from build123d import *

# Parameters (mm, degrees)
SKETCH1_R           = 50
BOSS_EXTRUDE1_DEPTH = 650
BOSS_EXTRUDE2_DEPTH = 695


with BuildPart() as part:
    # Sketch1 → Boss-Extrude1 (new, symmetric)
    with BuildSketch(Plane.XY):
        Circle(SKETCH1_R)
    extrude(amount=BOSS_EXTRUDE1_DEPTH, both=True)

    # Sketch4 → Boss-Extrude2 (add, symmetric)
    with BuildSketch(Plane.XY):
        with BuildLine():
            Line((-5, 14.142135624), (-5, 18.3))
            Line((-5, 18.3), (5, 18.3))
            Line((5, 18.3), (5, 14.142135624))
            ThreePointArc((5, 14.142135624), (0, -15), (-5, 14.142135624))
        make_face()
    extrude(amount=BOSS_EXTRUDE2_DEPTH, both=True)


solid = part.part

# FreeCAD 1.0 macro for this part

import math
import FreeCAD as App
import Part
import Sketcher
from FreeCAD import Vector

doc = App.newDocument("Part")
body = doc.addObject("PartDesign::Body", "Body")

# Sketch on XY plane
sketch1 = body.newObject("Sketcher::SketchObject", "Sketch")
sketch1.AttachmentSupport = (doc.getObject("XY_Plane"), [""])
sketch1.MapMode = "FlatFace"
sketch1.addGeometry(Part.Circle(Vector(0, 0, 0), Vector(0, 0, 1), 50), False)
sketch1.addConstraint([
    Sketcher.Constraint("Coincident", 0, 3, -1, 1),
    Sketcher.Constraint("Diameter", 0, 100.0),
])
pad1 = body.newObject("PartDesign::Pad", "Pad")
pad1.Profile = sketch1
pad1.Length = 1300
pad1.Midplane = True

# Sketch on XY plane
sketch2 = body.newObject("Sketcher::SketchObject", "Sketch001")
sketch2.AttachmentSupport = (doc.getObject("XY_Plane"), [""])
sketch2.MapMode = "FlatFace"
sketch2.addGeometry([
    Part.LineSegment(Vector(-5, 18.3, 0), Vector(-5, 14.142136, 0)),
    Part.ArcOfCircle(Part.Circle(Vector(0, 0, 0), Vector(0, 0, 1), 15), math.radians(109.471221), math.radians(430.528779)),
    Part.LineSegment(Vector(5, 14.142136, 0), Vector(5, 18.3, 0)),
    Part.LineSegment(Vector(5, 18.3, 0), Vector(-5, 18.3, 0)),
], False)
sketch2.addConstraint([
    Sketcher.Constraint("Coincident", 0, 2, 1, 1),
    Sketcher.Constraint("Coincident", 1, 2, 2, 1),
    Sketcher.Constraint("Coincident", 2, 2, 3, 1),
    Sketcher.Constraint("Coincident", 3, 2, 0, 1),
    Sketcher.Constraint("Vertical", 0),
    Sketcher.Constraint("Vertical", 2),
    Sketcher.Constraint("Horizontal", 3),
    Sketcher.Constraint("Coincident", 1, 3, -1, 1),
    Sketcher.Constraint("Horizontal", 0, 2, 1, 2),
    Sketcher.Constraint("Radius", 1, 15.0),
    Sketcher.Constraint("DistanceX", 3, 2, 3, 1, 10.0),
    Sketcher.Constraint("DistanceY", -1, 1, 2, 2, 18.3),
])
pad2 = body.newObject("PartDesign::Pad", "Pad001")
pad2.Profile = sketch2
pad2.Length = 1390
pad2.Midplane = True

doc.recompute()
